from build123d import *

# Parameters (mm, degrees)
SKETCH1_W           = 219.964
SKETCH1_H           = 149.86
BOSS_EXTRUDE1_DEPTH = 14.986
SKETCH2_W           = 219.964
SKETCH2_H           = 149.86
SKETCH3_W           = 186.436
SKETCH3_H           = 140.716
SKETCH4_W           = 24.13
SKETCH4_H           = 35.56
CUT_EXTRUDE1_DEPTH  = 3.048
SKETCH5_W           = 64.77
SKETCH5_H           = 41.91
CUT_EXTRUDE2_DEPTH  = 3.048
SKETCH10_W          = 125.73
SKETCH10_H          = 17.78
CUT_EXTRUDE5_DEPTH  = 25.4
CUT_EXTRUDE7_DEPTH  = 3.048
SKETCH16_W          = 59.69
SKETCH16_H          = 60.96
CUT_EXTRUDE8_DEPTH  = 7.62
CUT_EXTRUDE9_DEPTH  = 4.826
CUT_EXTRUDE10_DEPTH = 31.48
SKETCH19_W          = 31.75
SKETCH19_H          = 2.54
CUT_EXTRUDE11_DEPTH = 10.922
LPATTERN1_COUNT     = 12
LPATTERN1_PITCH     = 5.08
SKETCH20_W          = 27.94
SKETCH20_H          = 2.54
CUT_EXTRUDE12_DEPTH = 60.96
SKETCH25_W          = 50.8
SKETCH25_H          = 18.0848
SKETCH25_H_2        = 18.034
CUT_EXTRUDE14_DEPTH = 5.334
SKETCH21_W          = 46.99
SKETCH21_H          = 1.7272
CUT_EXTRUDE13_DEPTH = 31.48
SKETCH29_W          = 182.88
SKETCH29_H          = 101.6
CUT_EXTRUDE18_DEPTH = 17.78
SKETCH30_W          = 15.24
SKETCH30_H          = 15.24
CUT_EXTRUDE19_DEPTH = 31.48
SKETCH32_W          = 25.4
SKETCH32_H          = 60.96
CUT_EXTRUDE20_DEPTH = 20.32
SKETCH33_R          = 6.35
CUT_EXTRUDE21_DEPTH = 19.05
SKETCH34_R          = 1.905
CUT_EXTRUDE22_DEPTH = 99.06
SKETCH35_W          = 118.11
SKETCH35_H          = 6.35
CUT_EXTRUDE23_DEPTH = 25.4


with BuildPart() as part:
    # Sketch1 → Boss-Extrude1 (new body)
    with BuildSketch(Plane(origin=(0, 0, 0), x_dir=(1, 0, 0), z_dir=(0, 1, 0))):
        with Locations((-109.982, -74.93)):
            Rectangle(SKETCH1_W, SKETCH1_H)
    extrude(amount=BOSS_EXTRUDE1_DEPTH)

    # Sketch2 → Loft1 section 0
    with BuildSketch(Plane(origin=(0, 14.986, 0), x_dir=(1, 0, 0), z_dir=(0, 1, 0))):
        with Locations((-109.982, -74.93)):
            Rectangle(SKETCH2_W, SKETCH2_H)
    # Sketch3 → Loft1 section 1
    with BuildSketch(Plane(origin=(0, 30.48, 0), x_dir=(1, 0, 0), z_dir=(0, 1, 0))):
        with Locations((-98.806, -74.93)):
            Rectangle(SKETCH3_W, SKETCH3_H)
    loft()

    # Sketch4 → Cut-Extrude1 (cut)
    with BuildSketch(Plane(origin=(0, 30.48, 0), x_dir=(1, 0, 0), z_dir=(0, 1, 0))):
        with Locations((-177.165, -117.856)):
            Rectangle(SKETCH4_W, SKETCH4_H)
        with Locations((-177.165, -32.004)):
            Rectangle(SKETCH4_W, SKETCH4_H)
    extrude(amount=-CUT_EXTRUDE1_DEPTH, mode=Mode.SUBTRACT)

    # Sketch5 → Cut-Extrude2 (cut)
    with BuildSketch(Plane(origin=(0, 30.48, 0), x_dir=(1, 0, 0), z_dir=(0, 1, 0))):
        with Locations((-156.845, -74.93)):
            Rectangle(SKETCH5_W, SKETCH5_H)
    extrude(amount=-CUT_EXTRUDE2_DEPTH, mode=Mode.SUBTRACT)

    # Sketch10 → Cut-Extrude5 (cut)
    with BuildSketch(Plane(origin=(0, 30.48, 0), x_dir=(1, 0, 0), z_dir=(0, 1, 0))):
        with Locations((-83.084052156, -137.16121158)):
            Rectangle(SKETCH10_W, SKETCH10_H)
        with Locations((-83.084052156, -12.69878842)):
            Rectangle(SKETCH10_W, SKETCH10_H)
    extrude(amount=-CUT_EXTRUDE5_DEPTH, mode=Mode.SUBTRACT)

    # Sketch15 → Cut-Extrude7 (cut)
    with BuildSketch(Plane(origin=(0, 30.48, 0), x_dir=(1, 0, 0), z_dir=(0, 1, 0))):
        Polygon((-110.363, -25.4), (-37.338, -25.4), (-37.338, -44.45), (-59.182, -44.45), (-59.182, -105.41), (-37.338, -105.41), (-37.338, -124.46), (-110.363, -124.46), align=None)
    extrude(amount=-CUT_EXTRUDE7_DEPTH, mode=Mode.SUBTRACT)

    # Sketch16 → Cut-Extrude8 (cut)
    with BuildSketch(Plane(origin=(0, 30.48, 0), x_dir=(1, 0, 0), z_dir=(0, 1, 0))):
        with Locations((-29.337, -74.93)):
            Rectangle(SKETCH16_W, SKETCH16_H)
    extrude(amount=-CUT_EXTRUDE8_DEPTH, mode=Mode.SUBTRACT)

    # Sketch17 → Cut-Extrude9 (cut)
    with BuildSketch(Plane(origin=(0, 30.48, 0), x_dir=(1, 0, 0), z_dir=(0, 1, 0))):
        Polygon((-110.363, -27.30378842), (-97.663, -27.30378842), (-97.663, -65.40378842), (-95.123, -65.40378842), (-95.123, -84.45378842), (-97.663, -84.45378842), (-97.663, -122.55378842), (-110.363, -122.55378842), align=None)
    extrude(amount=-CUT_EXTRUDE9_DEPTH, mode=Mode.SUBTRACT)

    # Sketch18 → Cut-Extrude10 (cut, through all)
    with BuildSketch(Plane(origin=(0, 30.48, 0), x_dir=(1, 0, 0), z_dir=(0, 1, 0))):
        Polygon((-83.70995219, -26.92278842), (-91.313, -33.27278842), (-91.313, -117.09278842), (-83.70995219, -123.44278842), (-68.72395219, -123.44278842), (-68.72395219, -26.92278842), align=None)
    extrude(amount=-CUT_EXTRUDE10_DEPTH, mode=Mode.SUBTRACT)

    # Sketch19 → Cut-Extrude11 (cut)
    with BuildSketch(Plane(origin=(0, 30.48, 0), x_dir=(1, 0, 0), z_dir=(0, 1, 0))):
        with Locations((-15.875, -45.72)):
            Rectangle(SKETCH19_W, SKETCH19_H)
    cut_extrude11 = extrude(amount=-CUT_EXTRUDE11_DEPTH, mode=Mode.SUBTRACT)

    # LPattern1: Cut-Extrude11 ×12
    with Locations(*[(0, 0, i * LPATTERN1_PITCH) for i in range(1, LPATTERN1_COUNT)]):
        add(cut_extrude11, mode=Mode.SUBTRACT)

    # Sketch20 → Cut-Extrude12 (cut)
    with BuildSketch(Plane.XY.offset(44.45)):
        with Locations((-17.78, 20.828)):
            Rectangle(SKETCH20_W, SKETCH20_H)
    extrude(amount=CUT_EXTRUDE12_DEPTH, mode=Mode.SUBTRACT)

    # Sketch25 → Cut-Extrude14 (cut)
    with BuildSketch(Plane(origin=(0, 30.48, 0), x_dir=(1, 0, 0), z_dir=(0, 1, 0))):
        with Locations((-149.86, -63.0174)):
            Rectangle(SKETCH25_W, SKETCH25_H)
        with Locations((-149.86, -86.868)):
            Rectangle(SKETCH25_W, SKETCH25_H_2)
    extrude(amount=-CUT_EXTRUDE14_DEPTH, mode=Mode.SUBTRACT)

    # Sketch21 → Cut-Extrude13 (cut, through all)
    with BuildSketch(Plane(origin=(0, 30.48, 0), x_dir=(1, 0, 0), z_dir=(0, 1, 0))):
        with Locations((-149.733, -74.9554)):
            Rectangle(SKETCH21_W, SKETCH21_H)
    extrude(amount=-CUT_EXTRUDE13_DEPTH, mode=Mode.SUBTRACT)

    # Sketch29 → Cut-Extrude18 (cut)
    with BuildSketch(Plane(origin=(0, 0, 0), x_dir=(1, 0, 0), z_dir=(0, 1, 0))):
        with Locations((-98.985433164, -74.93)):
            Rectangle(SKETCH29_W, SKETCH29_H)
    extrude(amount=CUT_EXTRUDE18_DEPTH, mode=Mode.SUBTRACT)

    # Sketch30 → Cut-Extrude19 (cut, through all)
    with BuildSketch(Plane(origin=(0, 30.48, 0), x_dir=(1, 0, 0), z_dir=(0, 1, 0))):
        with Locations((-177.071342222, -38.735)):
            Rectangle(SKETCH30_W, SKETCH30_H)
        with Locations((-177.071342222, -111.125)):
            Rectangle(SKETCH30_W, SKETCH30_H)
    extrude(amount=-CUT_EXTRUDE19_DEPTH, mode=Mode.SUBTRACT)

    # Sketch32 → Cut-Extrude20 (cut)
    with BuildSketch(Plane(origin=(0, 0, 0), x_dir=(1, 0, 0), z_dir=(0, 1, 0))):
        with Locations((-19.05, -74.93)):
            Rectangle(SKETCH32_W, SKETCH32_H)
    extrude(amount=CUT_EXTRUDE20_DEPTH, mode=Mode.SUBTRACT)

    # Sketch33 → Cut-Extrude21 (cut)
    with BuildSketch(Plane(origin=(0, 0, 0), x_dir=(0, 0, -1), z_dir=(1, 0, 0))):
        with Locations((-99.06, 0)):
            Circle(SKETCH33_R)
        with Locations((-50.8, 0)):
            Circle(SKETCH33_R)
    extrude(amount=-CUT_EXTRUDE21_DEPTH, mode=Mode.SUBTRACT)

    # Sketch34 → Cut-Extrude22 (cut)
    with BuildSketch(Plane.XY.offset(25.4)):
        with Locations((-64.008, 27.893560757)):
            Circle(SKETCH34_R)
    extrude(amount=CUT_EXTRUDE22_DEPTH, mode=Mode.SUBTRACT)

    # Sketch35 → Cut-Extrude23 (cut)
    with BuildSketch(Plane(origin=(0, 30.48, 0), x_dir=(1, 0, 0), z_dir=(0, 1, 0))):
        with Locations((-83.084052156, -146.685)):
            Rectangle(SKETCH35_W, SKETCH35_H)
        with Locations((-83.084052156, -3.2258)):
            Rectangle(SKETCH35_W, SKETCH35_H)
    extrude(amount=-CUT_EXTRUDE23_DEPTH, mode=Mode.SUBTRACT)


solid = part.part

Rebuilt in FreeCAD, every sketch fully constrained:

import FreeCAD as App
import Part
import Sketcher

V = App.Vector
Q = App.Units.Quantity


def add_polygon(sketch, points):
    """Adds a closed chain of lines whose ends are joined by coincident constraints."""
    first, n = sketch.GeometryCount, len(points)
    for a, b in zip(points, points[1:] + points[:1]):
        sketch.addGeometry(Part.LineSegment(App.Vector(*a, 0), App.Vector(*b, 0)), False)
    for i in range(n):
        sketch.addConstraint(Sketcher.Constraint("Coincident", first + i, 2, first + (i + 1) % n, 1))

doc = App.newDocument("Part")
params = doc.addObject("Spreadsheet::Sheet", "Params")
for row, (alias, value) in enumerate([
    ("sketch1_height", "5.9 in"),
    ("sketch1_width", "8.66 in"),
    ("pad1_length", "0.59 in"),
    ("sketch2_height", "5.9 in"),
    ("sketch2_width", "8.66 in"),
    ("sketch3_width", "7.34 in"),
    ("sketch3_height", "5.54 in"),
    ("sketch4_height", "1.4 in"),
    ("sketch4_width", "0.95 in"),
    ("pocket1_length", "0.12 in"),
    ("sketch5_width", "2.55 in"),
    ("sketch5_height", "1.65 in"),
    ("pocket2_length", "0.12 in"),
    ("sketch6_height", "0.7 in"),
    ("sketch6_width", "4.95 in"),
    ("pocket3_length", "1 in"),
    ("sketch7_height", "3.9 in"),
    ("sketch7_height2", "2.4 in"),
    ("sketch7_width", "0.86 in"),
    ("sketch7_width2", "2.875 in"),
    ("pocket4_length", "0.12 in"),
    ("sketch8_height", "2.4 in"),
    ("sketch8_width", "2.35 in"),
    ("pocket5_length", "0.3 in"),
    ("sketch9_width", "0.5 in"),
    ("sketch9_width2", "0.1 in"),
    ("sketch9_height", "1.5 in"),
    ("sketch9_height2", "3.75 in"),
    ("pocket6_length", "0.19 in"),
    ("sketch10_height", "3.3 in"),
    ("sketch10_height2", "3.8 in"),
    ("sketch10_width", "0.59 in"),
    ("sketch10_length", "0.39 in"),
    ("sketch11_height", "0.1 in"),
    ("sketch11_width", "1.25 in"),
    ("pocket8_length", "0.43 in"),
    ("linearpattern_pitch", "0.2 in"),
    ("sketch12_width", "1.1 in"),
    ("sketch12_height", "0.1 in"),
    ("pocket9_length", "2.4 in"),
    ("sketch13_width", "2 in"),
    ("sketch13_height", "0.71 in"),
    ("sketch13_height2", "0.712 in"),
    ("pocket10_length", "0.21 in"),
    ("sketch14_width", "1.85 in"),
    ("sketch14_height", "0.068 in"),
    ("sketch15_height", "4 in"),
    ("sketch15_width", "7.2 in"),
    ("pocket12_length", "0.7 in"),
    ("sketch16_width", "0.6 in"),
    ("sketch17_width", "1 in"),
    ("sketch17_height", "2.4 in"),
    ("pocket14_length", "0.8 in"),
    ("sketch18_diameter", "0.5 in"),
    ("pocket15_length", "0.75 in"),
    ("sketch19_diameter", "0.15 in"),
    ("pocket16_length", "3.9 in"),
    ("sketch20_width", "4.65 in"),
    ("sketch20_height", "0.25 in"),
    ("pocket17_length", "1 in"),
], start=1):
    params.set(f"A{row}", alias)
    params.set(f"B{row}", "=" + value)
    params.setAlias(f"B{row}", alias)

body = doc.addObject("PartDesign::Body", "Body")

# Sketch on XZ plane
sketch1 = body.newObject("Sketcher::SketchObject", "Sketch")
sketch1.AttachmentSupport = (doc.getObject("XZ_Plane"), [""])
sketch1.MapMode = "FlatFace"
add_polygon(sketch1, [(-219.964, 0), (-219.964, 149.86), (0, 149.86), (0, 0)])  # lines 0-3
sketch1.addConstraint(Sketcher.Constraint("Vertical", 0))
sketch1.addConstraint(Sketcher.Constraint("Horizontal", 1))
sketch1.addConstraint(Sketcher.Constraint("Vertical", 2))
sketch1.addConstraint(Sketcher.Constraint("Horizontal", 3))
sketch1.addConstraint(Sketcher.Constraint("Coincident", 2, 2, -1, 1))
sketch1.addConstraint(Sketcher.Constraint("DistanceY", 0, 1, 0, 2, Q("5.9 in")))
sketch1.addConstraint(Sketcher.Constraint("DistanceX", 1, 1, 1, 2, Q("8.66 in")))
sketch1.setExpression("Constraints[9]", "Params.sketch1_height")
sketch1.setExpression("Constraints[10]", "Params.sketch1_width")
pad1 = body.newObject("PartDesign::Pad", "Pad")
pad1.Profile = sketch1
pad1.setExpression("Length", "Params.pad1_length")
pad1.Reversed = True

# Sketch on XZ plane
sketch2 = body.newObject("Sketcher::SketchObject", "Sketch001")
sketch2.AttachmentSupport = (doc.getObject("XZ_Plane"), [""])
sketch2.MapMode = "FlatFace"
sketch2.AttachmentOffset = App.Placement(V(0, 0, -0.59 * 25.4), App.Rotation())
add_polygon(sketch2, [(-219.964, 0), (-219.964, 149.86), (0, 149.86), (0, 0)])  # lines 0-3
sketch2.addConstraint(Sketcher.Constraint("Vertical", 0))
sketch2.addConstraint(Sketcher.Constraint("Horizontal", 1))
sketch2.addConstraint(Sketcher.Constraint("Vertical", 2))
sketch2.addConstraint(Sketcher.Constraint("Horizontal", 3))
sketch2.addConstraint(Sketcher.Constraint("Coincident", 2, 2, -1, 1))
sketch2.addConstraint(Sketcher.Constraint("DistanceY", 0, 1, 0, 2, Q("5.9 in")))
sketch2.addConstraint(Sketcher.Constraint("DistanceX", 1, 1, 1, 2, Q("8.66 in")))
sketch2.setExpression("Constraints[9]", "Params.sketch2_height")
sketch2.setExpression("Constraints[10]", "Params.sketch2_width")

# Sketch on XZ plane
sketch3 = body.newObject("Sketcher::SketchObject", "Sketch002")
sketch3.AttachmentSupport = (doc.getObject("XZ_Plane"), [""])
sketch3.MapMode = "FlatFace"
sketch3.AttachmentOffset = App.Placement(V(0, 0, -1.2 * 25.4), App.Rotation())
add_polygon(sketch3, [(-192.024, 4.572), (-192.024, 145.288), (-5.588, 145.288), (-5.588, 4.572)])  # lines 0-3
sketch3.addConstraint(Sketcher.Constraint("Vertical", 0))
sketch3.addConstraint(Sketcher.Constraint("Horizontal", 1))
sketch3.addConstraint(Sketcher.Constraint("Vertical", 2))
sketch3.addConstraint(Sketcher.Constraint("Horizontal", 3))
sketch3.addConstraint(Sketcher.Constraint("DistanceX", 1, 1, 1, 2, Q("7.34 in")))
sketch3.addConstraint(Sketcher.Constraint("DistanceY", 0, 1, 0, 2, Q("5.54 in")))
sketch3.addConstraint(Sketcher.Constraint("DistanceX", 0, 2, -1, 1, Q("7.56 in")))
sketch3.addConstraint(Sketcher.Constraint("DistanceY", -1, 1, 0, 2, Q("5.72 in")))
sketch3.setExpression("Constraints[8]", "Params.sketch3_width")
sketch3.setExpression("Constraints[9]", "Params.sketch3_height")

additiveloft = body.newObject("PartDesign::AdditiveLoft", "AdditiveLoft")
additiveloft.Profile = sketch2
additiveloft.Sections = [sketch3]

# Sketch on XZ plane
sketch4 = body.newObject("Sketcher::SketchObject", "Sketch003")
sketch4.AttachmentSupport = (doc.getObject("XZ_Plane"), [""])
sketch4.MapMode = "FlatFace"
sketch4.AttachmentOffset = App.Placement(V(0, 0, -1.2 * 25.4), App.Rotation())
add_polygon(sketch4, [(-189.23, 100.076), (-189.23, 135.636), (-165.1, 135.636), (-165.1, 100.076)])  # lines 0-3
add_polygon(sketch4, [(-189.23, 14.224), (-189.23, 49.784), (-165.1, 49.784), (-165.1, 14.224)])  # lines 4-7
sketch4.addConstraint(Sketcher.Constraint("Vertical", 0))
sketch4.addConstraint(Sketcher.Constraint("Horizontal", 1))
sketch4.addConstraint(Sketcher.Constraint("Vertical", 2))
sketch4.addConstraint(Sketcher.Constraint("Horizontal", 3))
sketch4.addConstraint(Sketcher.Constraint("Vertical", 4))
sketch4.addConstraint(Sketcher.Constraint("Horizontal", 5))
sketch4.addConstraint(Sketcher.Constraint("Vertical", 6))
sketch4.addConstraint(Sketcher.Constraint("Horizontal", 7))
sketch4.addConstraint(Sketcher.Constraint("Vertical", 3, 2, 4, 2))
sketch4.addConstraint(Sketcher.Constraint("Vertical", 2, 2, 5, 2))
sketch4.addConstraint(Sketcher.Constraint("Equal", 2, 4))
sketch4.addConstraint(Sketcher.Constraint("DistanceY", 0, 1, 0, 2, Q("1.4 in")))
sketch4.addConstraint(Sketcher.Constraint("DistanceX", 1, 1, 1, 2, Q("0.95 in")))
sketch4.addConstraint(Sketcher.Constraint("DistanceX", 1, 2, -1, 1, Q("6.5 in")))
sketch4.addConstraint(Sketcher.Constraint("DistanceY", -1, 1, 0, 2, Q("5.34 in")))
sketch4.addConstraint(Sketcher.Constraint("DistanceY", -1, 1, 4, 2, Q("1.96 in")))
sketch4.setExpression("Constraints[19]", "Params.sketch4_height")
sketch4.setExpression("Constraints[20]", "Params.sketch4_width")
pocket1 = body.newObject("PartDesign::Pocket", "Pocket")
pocket1.Profile = sketch4
pocket1.setExpression("Length", "Params.pocket1_length")
pocket1.Reversed = True

# Sketch on XZ plane
sketch5 = body.newObject("Sketcher::SketchObject", "Sketch004")
sketch5.AttachmentSupport = (doc.getObject("XZ_Plane"), [""])
sketch5.MapMode = "FlatFace"
sketch5.AttachmentOffset = App.Placement(V(0, 0, -1.2 * 25.4), App.Rotation())
add_polygon(sketch5, [(-189.23, 53.975), (-189.23, 95.885), (-124.46, 95.885), (-124.46, 53.975)])  # lines 0-3
sketch5.addConstraint(Sketcher.Constraint("Vertical", 0))
sketch5.addConstraint(Sketcher.Constraint("Horizontal", 1))
sketch5.addConstraint(Sketcher.Constraint("Vertical", 2))
sketch5.addConstraint(Sketcher.Constraint("Horizontal", 3))
sketch5.addConstraint(Sketcher.Constraint("DistanceX", 1, 1, 1, 2, Q("2.55 in")))
sketch5.addConstraint(Sketcher.Constraint("DistanceY", 0, 1, 0, 2, Q("1.65 in")))
sketch5.addConstraint(Sketcher.Constraint("DistanceX", 1, 2, -1, 1, Q("4.9 in")))
sketch5.addConstraint(Sketcher.Constraint("DistanceY", -1, 1, 0, 2, Q("3.775 in")))
sketch5.setExpression("Constraints[8]", "Params.sketch5_width")
sketch5.setExpression("Constraints[9]", "Params.sketch5_height")
pocket2 = body.newObject("PartDesign::Pocket", "Pocket001")
pocket2.Profile = sketch5
pocket2.setExpression("Length", "Params.pocket2_length")
pocket2.Reversed = True

# Sketch on XZ plane
sketch6 = body.newObject("Sketcher::SketchObject", "Sketch005")
sketch6.AttachmentSupport = (doc.getObject("XZ_Plane"), [""])
sketch6.MapMode = "FlatFace"
sketch6.AttachmentOffset = App.Placement(V(0, 0, -1.2 * 25.4), App.Rotation())
add_polygon(sketch6, [(-145.949052, 128.271212), (-145.949052, 146.051212), (-20.219052, 146.051212), (-20.219052, 128.271212)])  # lines 0-3
add_polygon(sketch6, [(-145.949052, 3.808788), (-145.949052, 21.588788), (-20.219052, 21.588788), (-20.219052, 3.808788)])  # lines 4-7
sketch6.addConstraint(Sketcher.Constraint("Vertical", 0))
sketch6.addConstraint(Sketcher.Constraint("Horizontal", 1))
sketch6.addConstraint(Sketcher.Constraint("Vertical", 2))
sketch6.addConstraint(Sketcher.Constraint("Horizontal", 3))
sketch6.addConstraint(Sketcher.Constraint("Vertical", 4))
sketch6.addConstraint(Sketcher.Constraint("Horizontal", 5))
sketch6.addConstraint(Sketcher.Constraint("Vertical", 6))
sketch6.addConstraint(Sketcher.Constraint("Horizontal", 7))
sketch6.addConstraint(Sketcher.Constraint("Vertical", 3, 2, 4, 2))
sketch6.addConstraint(Sketcher.Constraint("Vertical", 2, 2, 5, 2))
sketch6.addConstraint(Sketcher.Constraint("Equal", 2, 4))
sketch6.addConstraint(Sketcher.Constraint("DistanceY", 0, 1, 0, 2, Q("0.7 in")))
sketch6.addConstraint(Sketcher.Constraint("DistanceX", 1, 1, 1, 2, Q("4.95 in")))
sketch6.addConstraint(Sketcher.Constraint("DistanceY", -1, 1, 0, 2, 146.051212))
sketch6.addConstraint(Sketcher.Constraint("DistanceY", -1, 1, 4, 2, 21.588788))
sketch6.addConstraint(Sketcher.Constraint("DistanceX", 0, 2, -1, 1, 145.949052))
sketch6.setExpression("Constraints[19]", "Params.sketch6_height")
sketch6.setExpression("Constraints[20]", "Params.sketch6_width")
pocket3 = body.newObject("PartDesign::Pocket", "Pocket002")
pocket3.Profile = sketch6
pocket3.setExpression("Length", "Params.pocket3_length")
pocket3.Reversed = True

# Sketch on XZ plane
sketch7 = body.newObject("Sketcher::SketchObject", "Sketch006")
sketch7.AttachmentSupport = (doc.getObject("XZ_Plane"), [""])
sketch7.MapMode = "FlatFace"
sketch7.AttachmentOffset = App.Placement(V(0, 0, -1.2 * 25.4), App.Rotation())
add_polygon(sketch7, [(-37.338, 25.4), (-110.363, 25.4), (-110.363, 124.46), (-37.338, 124.46), (-37.338, 105.41), (-59.182, 105.41), (-59.182, 44.45), (-37.338, 44.45)])  # lines 0-7
sketch7.addConstraint(Sketcher.Constraint("Horizontal", 0))
sketch7.addConstraint(Sketcher.Constraint("Vertical", 1))
sketch7.addConstraint(Sketcher.Constraint("Horizontal", 2))
sketch7.addConstraint(Sketcher.Constraint("Vertical", 3))
sketch7.addConstraint(Sketcher.Constraint("Horizontal", 4))
sketch7.addConstraint(Sketcher.Constraint("Vertical", 5))
sketch7.addConstraint(Sketcher.Constraint("Horizontal", 6))
sketch7.addConstraint(Sketcher.Constraint("Vertical", 7))
sketch7.addConstraint(Sketcher.Constraint("Vertical", 3, 2, 6, 2))
sketch7.addConstraint(Sketcher.Constraint("Equal", 3, 7))
sketch7.addConstraint(Sketcher.Constraint("DistanceY", 1, 1, 1, 2, Q("3.9 in")))
sketch7.addConstraint(Sketcher.Constraint("DistanceY", 5, 2, 5, 1, Q("2.4 in")))
sketch7.addConstraint(Sketcher.Constraint("DistanceY", -1, 1, 0, 2, Q("1 in")))
sketch7.addConstraint(Sketcher.Constraint("DistanceX", 4, 2, 4, 1, Q("0.86 in")))
sketch7.addConstraint(Sketcher.Constraint("DistanceX", 0, 2, 0, 1, Q("2.875 in")))
sketch7.addConstraint(Sketcher.Constraint("DistanceX", 2, 2, -1, 1, Q("1.47 in")))
sketch7.setExpression("Constraints[18]", "Params.sketch7_height")
sketch7.setExpression("Constraints[19]", "Params.sketch7_height2")
sketch7.setExpression("Constraints[21]", "Params.sketch7_width")
sketch7.setExpression("Constraints[22]", "Params.sketch7_width2")
pocket4 = body.newObject("PartDesign::Pocket", "Pocket003")
pocket4.Profile = sketch7
pocket4.setExpression("Length", "Params.pocket4_length")
pocket4.Reversed = True

# Sketch on XZ plane
sketch8 = body.newObject("Sketcher::SketchObject", "Sketch007")
sketch8.AttachmentSupport = (doc.getObject("XZ_Plane"), [""])
sketch8.MapMode = "FlatFace"
sketch8.AttachmentOffset = App.Placement(V(0, 0, -1.2 * 25.4), App.Rotation())
add_polygon(sketch8, [(-59.182, 44.45), (-59.182, 105.41), (0.508, 105.41), (0.508, 44.45)])  # lines 0-3
sketch8.addConstraint(Sketcher.Constraint("Vertical", 0))
sketch8.addConstraint(Sketcher.Constraint("Horizontal", 1))
sketch8.addConstraint(Sketcher.Constraint("Vertical", 2))
sketch8.addConstraint(Sketcher.Constraint("Horizontal", 3))
sketch8.addConstraint(Sketcher.Constraint("DistanceY", 0, 1, 0, 2, Q("2.4 in")))
sketch8.addConstraint(Sketcher.Constraint("DistanceX", 1, 1, 1, 2, Q("2.35 in")))
sketch8.addConstraint(Sketcher.Constraint("DistanceX", 0, 2, -1, 1, Q("2.33 in")))
sketch8.addConstraint(Sketcher.Constraint("DistanceY", -1, 1, 0, 2, Q("4.15 in")))
sketch8.setExpression("Constraints[8]", "Params.sketch8_height")
sketch8.setExpression("Constraints[9]", "Params.sketch8_width")
pocket5 = body.newObject("PartDesign::Pocket", "Pocket004")
pocket5.Profile = sketch8
pocket5.setExpression("Length", "Params.pocket5_length")
pocket5.Reversed = True

# Sketch on XZ plane
sketch9 = body.newObject("Sketcher::SketchObject", "Sketch008")
sketch9.AttachmentSupport = (doc.getObject("XZ_Plane"), [""])
sketch9.MapMode = "FlatFace"
sketch9.AttachmentOffset = App.Placement(V(0, 0, -1.2 * 25.4), App.Rotation())
add_polygon(sketch9, [(-97.663, 27.303788), (-110.363, 27.303788), (-110.363, 122.553788), (-97.663, 122.553788), (-97.663, 84.453788), (-95.123, 84.453788), (-95.123, 65.403788), (-97.663, 65.403788)])  # lines 0-7
sketch9.addConstraint(Sketcher.Constraint("Horizontal", 0))
sketch9.addConstraint(Sketcher.Constraint("Vertical", 1))
sketch9.addConstraint(Sketcher.Constraint("Horizontal", 2))
sketch9.addConstraint(Sketcher.Constraint("Vertical", 3))
sketch9.addConstraint(Sketcher.Constraint("Horizontal", 4))
sketch9.addConstraint(Sketcher.Constraint("Vertical", 5))
sketch9.addConstraint(Sketcher.Constraint("Horizontal", 6))
sketch9.addConstraint(Sketcher.Constraint("Vertical", 7))
sketch9.addConstraint(Sketcher.Constraint("Vertical", 3, 2, 6, 2))
sketch9.addConstraint(Sketcher.Constraint("Equal", 3, 7))
sketch9.addConstraint(Sketcher.Constraint("DistanceX", 0, 2, 0, 1, Q("0.5 in")))
sketch9.addConstraint(Sketcher.Constraint("DistanceX", 4, 1, 4, 2, Q("0.1 in")))
sketch9.addConstraint(Sketcher.Constraint("DistanceY", 3, 2, 3, 1, Q("1.5 in")))
sketch9.addConstraint(Sketcher.Constraint("DistanceY", 1, 1, 1, 2, Q("3.75 in")))
sketch9.addConstraint(Sketcher.Constraint("DistanceX", 0, 2, -1, 1, Q("4.345 in")))
sketch9.addConstraint(Sketcher.Constraint("DistanceY", -1, 1, 0, 2, 27.303788))
sketch9.setExpression("Constraints[18]", "Params.sketch9_width")
sketch9.setExpression("Constraints[19]", "Params.sketch9_width2")
sketch9.setExpression("Constraints[20]", "Params.sketch9_height")
sketch9.setExpression("Constraints[21]", "Params.sketch9_height2")
pocket6 = body.newObject("PartDesign::Pocket", "Pocket005")
pocket6.Profile = sketch9
pocket6.setExpression("Length", "Params.pocket6_length")
pocket6.Reversed = True

# Sketch on XZ plane
sketch10 = body.newObject("Sketcher::SketchObject", "Sketch009")
sketch10.AttachmentSupport = (doc.getObject("XZ_Plane"), [""])
sketch10.MapMode = "FlatFace"
sketch10.AttachmentOffset = App.Placement(V(0, 0, -1.2 * 25.4), App.Rotation())
add_polygon(sketch10, [(-83.709952, 26.922788), (-91.313, 33.272788), (-91.313, 117.092788), (-83.709952, 123.442788), (-68.723952, 123.442788), (-68.723952, 26.922788)])  # lines 0-5
sketch10.addConstraint(Sketcher.Constraint("Vertical", 1))
sketch10.addConstraint(Sketcher.Constraint("Horizontal", 3))
sketch10.addConstraint(Sketcher.Constraint("Vertical", 4))
sketch10.addConstraint(Sketcher.Constraint("Horizontal", 5))
sketch10.addConstraint(Sketcher.Constraint("Vertical", 2, 2, 5, 2))
sketch10.addConstraint(Sketcher.Constraint("Equal", 0, 2))
sketch10.addConstraint(Sketcher.Constraint("DistanceY", 1, 1, 1, 2, Q("3.3 in")))
sketch10.addConstraint(Sketcher.Constraint("DistanceY", 4, 2, 4, 1, Q("3.8 in")))
sketch10.addConstraint(Sketcher.Constraint("DistanceX", 3, 1, 3, 2, Q("0.59 in")))
sketch10.addConstraint(Sketcher.Constraint("Distance", 0, Q("0.39 in")))
sketch10.addConstraint(Sketcher.Constraint("DistanceX", 0, 2, -1, 1, Q("3.595 in")))
sketch10.addConstraint(Sketcher.Constraint("DistanceY", -1, 1, 0, 2, 33.272788))
sketch10.setExpression("Constraints[12]", "Params.sketch10_height")
sketch10.setExpression("Constraints[13]", "Params.sketch10_height2")
sketch10.setExpression("Constraints[14]", "Params.sketch10_width")
sketch10.setExpression("Constraints[15]", "Params.sketch10_length")
pocket7 = body.newObject("PartDesign::Pocket", "Pocket006")
pocket7.Profile = sketch10
pocket7.Type = "ThroughAll"
pocket7.Reversed = True

# Sketch on XZ plane
sketch11 = body.newObject("Sketcher::SketchObject", "Sketch010")
sketch11.AttachmentSupport = (doc.getObject("XZ_Plane"), [""])
sketch11.MapMode = "FlatFace"
sketch11.AttachmentOffset = App.Placement(V(0, 0, -1.2 * 25.4), App.Rotation())
add_polygon(sketch11, [(-31.75, 44.45), (-31.75, 46.99), (0, 46.99), (0, 44.45)])  # lines 0-3
sketch11.addConstraint(Sketcher.Constraint("Vertical", 0))
sketch11.addConstraint(Sketcher.Constraint("Horizontal", 1))
sketch11.addConstraint(Sketcher.Constraint("Vertical", 2))
sketch11.addConstraint(Sketcher.Constraint("Horizontal", 3))
sketch11.addConstraint(Sketcher.Constraint("PointOnObject", 1, 2, -2))
sketch11.addConstraint(Sketcher.Constraint("DistanceY", 0, 1, 0, 2, Q("0.1 in")))
sketch11.addConstraint(Sketcher.Constraint("DistanceX", 1, 1, 1, 2, Q("1.25 in")))
sketch11.addConstraint(Sketcher.Constraint("DistanceY", -1, 1, 0, 2, Q("1.85 in")))
sketch11.setExpression("Constraints[9]", "Params.sketch11_height")
sketch11.setExpression("Constraints[10]", "Params.sketch11_width")
pocket8 = body.newObject("PartDesign::Pocket", "Pocket007")
pocket8.Profile = sketch11
pocket8.setExpression("Length", "Params.pocket8_length")
pocket8.Reversed = True
doc.recompute()

linearpattern = body.newObject("PartDesign::LinearPattern", "LinearPattern")
linearpattern.Originals = [pocket8]
linearpattern.Direction = (doc.getObject("Z_Axis"), [""])
linearpattern.Mode = "offset"
linearpattern.setExpression("Offset", "Params.linearpattern_pitch")
linearpattern.Occurrences = 12
body.Tip = linearpattern

# Sketch on XY plane
sketch12 = body.newObject("Sketcher::SketchObject", "Sketch011")
sketch12.AttachmentSupport = (doc.getObject("XY_Plane"), [""])
sketch12.MapMode = "FlatFace"
sketch12.AttachmentOffset = App.Placement(V(0, 0, 1.75 * 25.4), App.Rotation())
add_polygon(sketch12, [(-31.75, 22.098), (-31.75, 19.558), (-3.81, 19.558), (-3.81, 22.098)])  # lines 0-3
sketch12.addConstraint(Sketcher.Constraint("Vertical", 0))
sketch12.addConstraint(Sketcher.Constraint("Horizontal", 1))
sketch12.addConstraint(Sketcher.Constraint("Vertical", 2))
sketch12.addConstraint(Sketcher.Constraint("Horizontal", 3))
sketch12.addConstraint(Sketcher.Constraint("DistanceX", 1, 1, 1, 2, Q("1.1 in")))
sketch12.addConstraint(Sketcher.Constraint("DistanceY", 0, 2, 0, 1, Q("0.1 in")))
sketch12.addConstraint(Sketcher.Constraint("DistanceX", 0, 2, -1, 1, Q("1.25 in")))
sketch12.addConstraint(Sketcher.Constraint("DistanceY", -1, 1, 0, 2, Q("0.77 in")))
sketch12.setExpression("Constraints[8]", "Params.sketch12_width")
sketch12.setExpression("Constraints[9]", "Params.sketch12_height")
pocket9 = body.newObject("PartDesign::Pocket", "Pocket008")
pocket9.Profile = sketch12
pocket9.setExpression("Length", "Params.pocket9_length")
pocket9.Reversed = True

# Sketch on XZ plane
sketch13 = body.newObject("Sketcher::SketchObject", "Sketch012")
sketch13.AttachmentSupport = (doc.getObject("XZ_Plane"), [""])
sketch13.MapMode = "FlatFace"
sketch13.AttachmentOffset = App.Placement(V(0, 0, -1.2 * 25.4), App.Rotation())
add_polygon(sketch13, [(-175.26, 53.975), (-175.26, 72.0598), (-124.46, 72.0598), (-124.46, 53.975)])  # lines 0-3
add_polygon(sketch13, [(-175.26, 77.851), (-175.26, 95.885), (-124.46, 95.885), (-124.46, 77.851)])  # lines 4-7
sketch13.addConstraint(Sketcher.Constraint("Vertical", 0))
sketch13.addConstraint(Sketcher.Constraint("Horizontal", 1))
sketch13.addConstraint(Sketcher.Constraint("Vertical", 2))
sketch13.addConstraint(Sketcher.Constraint("Horizontal", 3))
sketch13.addConstraint(Sketcher.Constraint("Vertical", 4))
sketch13.addConstraint(Sketcher.Constraint("Horizontal", 5))
sketch13.addConstraint(Sketcher.Constraint("Vertical", 6))
sketch13.addConstraint(Sketcher.Constraint("Horizontal", 7))
sketch13.addConstraint(Sketcher.Constraint("Vertical", 3, 2, 4, 2))
sketch13.addConstraint(Sketcher.Constraint("Vertical", 2, 2, 5, 2))
sketch13.addConstraint(Sketcher.Constraint("DistanceX", 1, 1, 1, 2, Q("2 in")))
sketch13.addConstraint(Sketcher.Constraint("DistanceY", 4, 1, 4, 2, Q("0.71 in")))
sketch13.addConstraint(Sketcher.Constraint("DistanceX", 0, 2, -1, 1, Q("6.9 in")))
sketch13.addConstraint(Sketcher.Constraint("DistanceY", 0, 1, 0, 2, Q("0.712 in")))
sketch13.addConstraint(Sketcher.Constraint("DistanceY", 3, 2, 4, 2, Q("1.65 in")))
sketch13.addConstraint(Sketcher.Constraint("DistanceY", -1, 1, 0, 2, Q("2.837 in")))
sketch13.setExpression("Constraints[18]", "Params.sketch13_width")
sketch13.setExpression("Constraints[19]", "Params.sketch13_height")
sketch13.setExpression("Constraints[21]", "Params.sketch13_height2")
pocket10 = body.newObject("PartDesign::Pocket", "Pocket009")
pocket10.Profile = sketch13
pocket10.setExpression("Length", "Params.pocket10_length")
pocket10.Reversed = True

# Sketch on XZ plane
sketch14 = body.newObject("Sketcher::SketchObject", "Sketch013")
sketch14.AttachmentSupport = (doc.getObject("XZ_Plane"), [""])
sketch14.MapMode = "FlatFace"
sketch14.AttachmentOffset = App.Placement(V(0, 0, -1.2 * 25.4), App.Rotation())
add_polygon(sketch14, [(-173.228, 74.0918), (-173.228, 75.819), (-126.238, 75.819), (-126.238, 74.0918)])  # lines 0-3
sketch14.addConstraint(Sketcher.Constraint("Vertical", 0))
sketch14.addConstraint(Sketcher.Constraint("Horizontal", 1))
sketch14.addConstraint(Sketcher.Constraint("Vertical", 2))
sketch14.addConstraint(Sketcher.Constraint("Horizontal", 3))
sketch14.addConstraint(Sketcher.Constraint("DistanceX", 1, 1, 1, 2, Q("1.85 in")))
sketch14.addConstraint(Sketcher.Constraint("DistanceY", 0, 1, 0, 2, Q("0.068 in")))
sketch14.addConstraint(Sketcher.Constraint("DistanceX", 0, 2, -1, 1, Q("6.82 in")))
sketch14.addConstraint(Sketcher.Constraint("DistanceY", -1, 1, 0, 2, Q("2.985 in")))
sketch14.setExpression("Constraints[8]", "Params.sketch14_width")
sketch14.setExpression("Constraints[9]", "Params.sketch14_height")
pocket11 = body.newObject("PartDesign::Pocket", "Pocket010")
pocket11.Profile = sketch14
pocket11.Type = "ThroughAll"
pocket11.Reversed = True

# Sketch on XZ plane
sketch15 = body.newObject("Sketcher::SketchObject", "Sketch014")
sketch15.AttachmentSupport = (doc.getObject("XZ_Plane"), [""])
sketch15.MapMode = "FlatFace"
add_polygon(sketch15, [(-190.425433, 24.13), (-190.425433, 125.73), (-7.545433, 125.73), (-7.545433, 24.13)])  # lines 0-3
sketch15.addConstraint(Sketcher.Constraint("Vertical", 0))
sketch15.addConstraint(Sketcher.Constraint("Horizontal", 1))
sketch15.addConstraint(Sketcher.Constraint("Vertical", 2))
sketch15.addConstraint(Sketcher.Constraint("Horizontal", 3))
sketch15.addConstraint(Sketcher.Constraint("DistanceY", 0, 1, 0, 2, Q("4 in")))
sketch15.addConstraint(Sketcher.Constraint("DistanceX", 1, 1, 1, 2, Q("7.2 in")))
sketch15.addConstraint(Sketcher.Constraint("DistanceY", -1, 1, 0, 2, Q("4.95 in")))
sketch15.addConstraint(Sketcher.Constraint("DistanceX", 0, 2, -1, 1, 190.425433))
sketch15.setExpression("Constraints[8]", "Params.sketch15_height")
sketch15.setExpression("Constraints[9]", "Params.sketch15_width")
pocket12 = body.newObject("PartDesign::Pocket", "Pocket011")
pocket12.Profile = sketch15
pocket12.setExpression("Length", "Params.pocket12_length")

# Sketch on XZ plane
sketch16 = body.newObject("Sketcher::SketchObject", "Sketch015")
sketch16.AttachmentSupport = (doc.getObject("XZ_Plane"), [""])
sketch16.MapMode = "FlatFace"
sketch16.AttachmentOffset = App.Placement(V(0, 0, -1.2 * 25.4), App.Rotation())
add_polygon(sketch16, [(-184.691342, 31.115), (-184.691342, 46.355), (-169.451342, 46.355), (-169.451342, 31.115)])  # lines 0-3
add_polygon(sketch16, [(-184.691342, 103.505), (-184.691342, 118.745), (-169.451342, 118.745), (-169.451342, 103.505)])  # lines 4-7
sketch16.addConstraint(Sketcher.Constraint("Vertical", 0))
sketch16.addConstraint(Sketcher.Constraint("Horizontal", 1))
sketch16.addConstraint(Sketcher.Constraint("Vertical", 2))
sketch16.addConstraint(Sketcher.Constraint("Horizontal", 3))
sketch16.addConstraint(Sketcher.Constraint("Vertical", 4))
sketch16.addConstraint(Sketcher.Constraint("Horizontal", 5))
sketch16.addConstraint(Sketcher.Constraint("Vertical", 6))
sketch16.addConstraint(Sketcher.Constraint("Horizontal", 7))
sketch16.addConstraint(Sketcher.Constraint("Vertical", 3, 2, 4, 2))
sketch16.addConstraint(Sketcher.Constraint("Vertical", 2, 2, 5, 2))
sketch16.addConstraint(Sketcher.Constraint("Equal", 7, 0))
sketch16.addConstraint(Sketcher.Constraint("Equal", 2, 4))
sketch16.addConstraint(Sketcher.Constraint("DistanceX", 1, 1, 1, 2, Q("0.6 in")))
sketch16.addConstraint(Sketcher.Constraint("DistanceY", 0, 2, 4, 2, Q("2.85 in")))
sketch16.addConstraint(Sketcher.Constraint("DistanceY", -1, 1, 0, 2, Q("1.825 in")))
sketch16.addConstraint(Sketcher.Constraint("DistanceX", 0, 2, -1, 1, 184.691342))
sketch16.setExpression("Constraints[20]", "Params.sketch16_width")
pocket13 = body.newObject("PartDesign::Pocket", "Pocket012")
pocket13.Profile = sketch16
pocket13.Type = "ThroughAll"
pocket13.Reversed = True

# Sketch on XZ plane
sketch17 = body.newObject("Sketcher::SketchObject", "Sketch016")
sketch17.AttachmentSupport = (doc.getObject("XZ_Plane"), [""])
sketch17.MapMode = "FlatFace"
add_polygon(sketch17, [(-31.75, 44.45), (-31.75, 105.41), (-6.35, 105.41), (-6.35, 44.45)])  # lines 0-3
sketch17.addConstraint(Sketcher.Constraint("Vertical", 0))
sketch17.addConstraint(Sketcher.Constraint("Horizontal", 1))
sketch17.addConstraint(Sketcher.Constraint("Vertical", 2))
sketch17.addConstraint(Sketcher.Constraint("Horizontal", 3))
sketch17.addConstraint(Sketcher.Constraint("DistanceX", 1, 1, 1, 2, Q("1 in")))
sketch17.addConstraint(Sketcher.Constraint("DistanceY", 0, 1, 0, 2, Q("2.4 in")))
sketch17.addConstraint(Sketcher.Constraint("DistanceX", 0, 2, -1, 1, Q("1.25 in")))
sketch17.addConstraint(Sketcher.Constraint("DistanceY", -1, 1, 0, 2, Q("4.15 in")))
sketch17.setExpression("Constraints[8]", "Params.sketch17_width")
sketch17.setExpression("Constraints[9]", "Params.sketch17_height")
pocket14 = body.newObject("PartDesign::Pocket", "Pocket013")
pocket14.Profile = sketch17
pocket14.setExpression("Length", "Params.pocket14_length")

# Sketch on YZ plane
sketch18 = body.newObject("Sketcher::SketchObject", "Sketch017")
sketch18.AttachmentSupport = (doc.getObject("YZ_Plane"), [""])
sketch18.MapMode = "FlatFace"
sketch18.addGeometry(Part.Circle(V(0, 99.06, 0), V(0, 0, 1), 6.35), False)
sketch18.addGeometry(Part.Circle(V(0, 50.8, 0), V(0, 0, 1), 6.35), False)
sketch18.addConstraint(Sketcher.Constraint("Equal", 0, 1))
sketch18.addConstraint(Sketcher.Constraint("PointOnObject", 0, 3, -2))
sketch18.addConstraint(Sketcher.Constraint("PointOnObject", 1, 3, -2))
sketch18.addConstraint(Sketcher.Constraint("Diameter", 0, Q("0.5 in")))
sketch18.addConstraint(Sketcher.Constraint("DistanceY", -1, 1, 1, 3, Q("2 in")))
sketch18.addConstraint(Sketcher.Constraint("DistanceY", -1, 1, 0, 3, Q("3.9 in")))
sketch18.setExpression("Constraints[3]", "Params.sketch18_diameter")
pocket15 = body.newObject("PartDesign::Pocket", "Pocket014")
pocket15.Profile = sketch18
pocket15.setExpression("Length", "Params.pocket15_length")

# Sketch on XY plane
sketch19 = body.newObject("Sketcher::SketchObject", "Sketch018")
sketch19.AttachmentSupport = (doc.getObject("XY_Plane"), [""])
sketch19.MapMode = "FlatFace"
sketch19.AttachmentOffset = App.Placement(V(0, 0, 1 * 25.4), App.Rotation())
sketch19.addGeometry(Part.Circle(V(-64.008, 27.893561, 0), V(0, 0, 1), 1.905), False)
sketch19.addConstraint(Sketcher.Constraint("Diameter", 0, Q("0.15 in")))
sketch19.addConstraint(Sketcher.Constraint("DistanceX", 0, 3, -1, 1, Q("2.52 in")))
sketch19.addConstraint(Sketcher.Constraint("DistanceY", -1, 1, 0, 3, 27.893561))
sketch19.setExpression("Constraints[0]", "Params.sketch19_diameter")
pocket16 = body.newObject("PartDesign::Pocket", "Pocket015")
pocket16.Profile = sketch19
pocket16.setExpression("Length", "Params.pocket16_length")
pocket16.Reversed = True

# Sketch on XZ plane
sketch20 = body.newObject("Sketcher::SketchObject", "Sketch019")
sketch20.AttachmentSupport = (doc.getObject("XZ_Plane"), [""])
sketch20.MapMode = "FlatFace"
sketch20.AttachmentOffset = App.Placement(V(0, 0, -1.2 * 25.4), App.Rotation())
add_polygon(sketch20, [(-142.139052, 143.51), (-142.139052, 149.86), (-24.029052, 149.86), (-24.029052, 143.51)])  # lines 0-3
add_polygon(sketch20, [(-142.139052, 0.0508), (-142.139052, 6.4008), (-24.029052, 6.4008), (-24.029052, 0.0508)])  # lines 4-7
sketch20.addConstraint(Sketcher.Constraint("Vertical", 0))
sketch20.addConstraint(Sketcher.Constraint("Horizontal", 1))
sketch20.addConstraint(Sketcher.Constraint("Vertical", 2))
sketch20.addConstraint(Sketcher.Constraint("Horizontal", 3))
sketch20.addConstraint(Sketcher.Constraint("Vertical", 4))
sketch20.addConstraint(Sketcher.Constraint("Horizontal", 5))
sketch20.addConstraint(Sketcher.Constraint("Vertical", 6))
sketch20.addConstraint(Sketcher.Constraint("Horizontal", 7))
sketch20.addConstraint(Sketcher.Constraint("Vertical", 3, 2, 4, 2))
sketch20.addConstraint(Sketcher.Constraint("Vertical", 2, 2, 5, 2))
sketch20.addConstraint(Sketcher.Constraint("Equal", 2, 4))
sketch20.addConstraint(Sketcher.Constraint("DistanceX", 1, 1, 1, 2, Q("4.65 in")))
sketch20.addConstraint(Sketcher.Constraint("DistanceY", 0, 1, 0, 2, Q("0.25 in")))
sketch20.addConstraint(Sketcher.Constraint("DistanceY", -1, 1, 0, 2, Q("5.9 in")))
sketch20.addConstraint(Sketcher.Constraint("DistanceY", -1, 1, 4, 2, Q("0.252 in")))
sketch20.addConstraint(Sketcher.Constraint("DistanceX", 0, 2, -1, 1, 142.139052))
sketch20.setExpression("Constraints[19]", "Params.sketch20_width")
sketch20.setExpression("Constraints[20]", "Params.sketch20_height")
pocket17 = body.newObject("PartDesign::Pocket", "Pocket016")
pocket17.Profile = sketch20
pocket17.setExpression("Length", "Params.pocket17_length")
pocket17.Reversed = True

doc.recompute()
